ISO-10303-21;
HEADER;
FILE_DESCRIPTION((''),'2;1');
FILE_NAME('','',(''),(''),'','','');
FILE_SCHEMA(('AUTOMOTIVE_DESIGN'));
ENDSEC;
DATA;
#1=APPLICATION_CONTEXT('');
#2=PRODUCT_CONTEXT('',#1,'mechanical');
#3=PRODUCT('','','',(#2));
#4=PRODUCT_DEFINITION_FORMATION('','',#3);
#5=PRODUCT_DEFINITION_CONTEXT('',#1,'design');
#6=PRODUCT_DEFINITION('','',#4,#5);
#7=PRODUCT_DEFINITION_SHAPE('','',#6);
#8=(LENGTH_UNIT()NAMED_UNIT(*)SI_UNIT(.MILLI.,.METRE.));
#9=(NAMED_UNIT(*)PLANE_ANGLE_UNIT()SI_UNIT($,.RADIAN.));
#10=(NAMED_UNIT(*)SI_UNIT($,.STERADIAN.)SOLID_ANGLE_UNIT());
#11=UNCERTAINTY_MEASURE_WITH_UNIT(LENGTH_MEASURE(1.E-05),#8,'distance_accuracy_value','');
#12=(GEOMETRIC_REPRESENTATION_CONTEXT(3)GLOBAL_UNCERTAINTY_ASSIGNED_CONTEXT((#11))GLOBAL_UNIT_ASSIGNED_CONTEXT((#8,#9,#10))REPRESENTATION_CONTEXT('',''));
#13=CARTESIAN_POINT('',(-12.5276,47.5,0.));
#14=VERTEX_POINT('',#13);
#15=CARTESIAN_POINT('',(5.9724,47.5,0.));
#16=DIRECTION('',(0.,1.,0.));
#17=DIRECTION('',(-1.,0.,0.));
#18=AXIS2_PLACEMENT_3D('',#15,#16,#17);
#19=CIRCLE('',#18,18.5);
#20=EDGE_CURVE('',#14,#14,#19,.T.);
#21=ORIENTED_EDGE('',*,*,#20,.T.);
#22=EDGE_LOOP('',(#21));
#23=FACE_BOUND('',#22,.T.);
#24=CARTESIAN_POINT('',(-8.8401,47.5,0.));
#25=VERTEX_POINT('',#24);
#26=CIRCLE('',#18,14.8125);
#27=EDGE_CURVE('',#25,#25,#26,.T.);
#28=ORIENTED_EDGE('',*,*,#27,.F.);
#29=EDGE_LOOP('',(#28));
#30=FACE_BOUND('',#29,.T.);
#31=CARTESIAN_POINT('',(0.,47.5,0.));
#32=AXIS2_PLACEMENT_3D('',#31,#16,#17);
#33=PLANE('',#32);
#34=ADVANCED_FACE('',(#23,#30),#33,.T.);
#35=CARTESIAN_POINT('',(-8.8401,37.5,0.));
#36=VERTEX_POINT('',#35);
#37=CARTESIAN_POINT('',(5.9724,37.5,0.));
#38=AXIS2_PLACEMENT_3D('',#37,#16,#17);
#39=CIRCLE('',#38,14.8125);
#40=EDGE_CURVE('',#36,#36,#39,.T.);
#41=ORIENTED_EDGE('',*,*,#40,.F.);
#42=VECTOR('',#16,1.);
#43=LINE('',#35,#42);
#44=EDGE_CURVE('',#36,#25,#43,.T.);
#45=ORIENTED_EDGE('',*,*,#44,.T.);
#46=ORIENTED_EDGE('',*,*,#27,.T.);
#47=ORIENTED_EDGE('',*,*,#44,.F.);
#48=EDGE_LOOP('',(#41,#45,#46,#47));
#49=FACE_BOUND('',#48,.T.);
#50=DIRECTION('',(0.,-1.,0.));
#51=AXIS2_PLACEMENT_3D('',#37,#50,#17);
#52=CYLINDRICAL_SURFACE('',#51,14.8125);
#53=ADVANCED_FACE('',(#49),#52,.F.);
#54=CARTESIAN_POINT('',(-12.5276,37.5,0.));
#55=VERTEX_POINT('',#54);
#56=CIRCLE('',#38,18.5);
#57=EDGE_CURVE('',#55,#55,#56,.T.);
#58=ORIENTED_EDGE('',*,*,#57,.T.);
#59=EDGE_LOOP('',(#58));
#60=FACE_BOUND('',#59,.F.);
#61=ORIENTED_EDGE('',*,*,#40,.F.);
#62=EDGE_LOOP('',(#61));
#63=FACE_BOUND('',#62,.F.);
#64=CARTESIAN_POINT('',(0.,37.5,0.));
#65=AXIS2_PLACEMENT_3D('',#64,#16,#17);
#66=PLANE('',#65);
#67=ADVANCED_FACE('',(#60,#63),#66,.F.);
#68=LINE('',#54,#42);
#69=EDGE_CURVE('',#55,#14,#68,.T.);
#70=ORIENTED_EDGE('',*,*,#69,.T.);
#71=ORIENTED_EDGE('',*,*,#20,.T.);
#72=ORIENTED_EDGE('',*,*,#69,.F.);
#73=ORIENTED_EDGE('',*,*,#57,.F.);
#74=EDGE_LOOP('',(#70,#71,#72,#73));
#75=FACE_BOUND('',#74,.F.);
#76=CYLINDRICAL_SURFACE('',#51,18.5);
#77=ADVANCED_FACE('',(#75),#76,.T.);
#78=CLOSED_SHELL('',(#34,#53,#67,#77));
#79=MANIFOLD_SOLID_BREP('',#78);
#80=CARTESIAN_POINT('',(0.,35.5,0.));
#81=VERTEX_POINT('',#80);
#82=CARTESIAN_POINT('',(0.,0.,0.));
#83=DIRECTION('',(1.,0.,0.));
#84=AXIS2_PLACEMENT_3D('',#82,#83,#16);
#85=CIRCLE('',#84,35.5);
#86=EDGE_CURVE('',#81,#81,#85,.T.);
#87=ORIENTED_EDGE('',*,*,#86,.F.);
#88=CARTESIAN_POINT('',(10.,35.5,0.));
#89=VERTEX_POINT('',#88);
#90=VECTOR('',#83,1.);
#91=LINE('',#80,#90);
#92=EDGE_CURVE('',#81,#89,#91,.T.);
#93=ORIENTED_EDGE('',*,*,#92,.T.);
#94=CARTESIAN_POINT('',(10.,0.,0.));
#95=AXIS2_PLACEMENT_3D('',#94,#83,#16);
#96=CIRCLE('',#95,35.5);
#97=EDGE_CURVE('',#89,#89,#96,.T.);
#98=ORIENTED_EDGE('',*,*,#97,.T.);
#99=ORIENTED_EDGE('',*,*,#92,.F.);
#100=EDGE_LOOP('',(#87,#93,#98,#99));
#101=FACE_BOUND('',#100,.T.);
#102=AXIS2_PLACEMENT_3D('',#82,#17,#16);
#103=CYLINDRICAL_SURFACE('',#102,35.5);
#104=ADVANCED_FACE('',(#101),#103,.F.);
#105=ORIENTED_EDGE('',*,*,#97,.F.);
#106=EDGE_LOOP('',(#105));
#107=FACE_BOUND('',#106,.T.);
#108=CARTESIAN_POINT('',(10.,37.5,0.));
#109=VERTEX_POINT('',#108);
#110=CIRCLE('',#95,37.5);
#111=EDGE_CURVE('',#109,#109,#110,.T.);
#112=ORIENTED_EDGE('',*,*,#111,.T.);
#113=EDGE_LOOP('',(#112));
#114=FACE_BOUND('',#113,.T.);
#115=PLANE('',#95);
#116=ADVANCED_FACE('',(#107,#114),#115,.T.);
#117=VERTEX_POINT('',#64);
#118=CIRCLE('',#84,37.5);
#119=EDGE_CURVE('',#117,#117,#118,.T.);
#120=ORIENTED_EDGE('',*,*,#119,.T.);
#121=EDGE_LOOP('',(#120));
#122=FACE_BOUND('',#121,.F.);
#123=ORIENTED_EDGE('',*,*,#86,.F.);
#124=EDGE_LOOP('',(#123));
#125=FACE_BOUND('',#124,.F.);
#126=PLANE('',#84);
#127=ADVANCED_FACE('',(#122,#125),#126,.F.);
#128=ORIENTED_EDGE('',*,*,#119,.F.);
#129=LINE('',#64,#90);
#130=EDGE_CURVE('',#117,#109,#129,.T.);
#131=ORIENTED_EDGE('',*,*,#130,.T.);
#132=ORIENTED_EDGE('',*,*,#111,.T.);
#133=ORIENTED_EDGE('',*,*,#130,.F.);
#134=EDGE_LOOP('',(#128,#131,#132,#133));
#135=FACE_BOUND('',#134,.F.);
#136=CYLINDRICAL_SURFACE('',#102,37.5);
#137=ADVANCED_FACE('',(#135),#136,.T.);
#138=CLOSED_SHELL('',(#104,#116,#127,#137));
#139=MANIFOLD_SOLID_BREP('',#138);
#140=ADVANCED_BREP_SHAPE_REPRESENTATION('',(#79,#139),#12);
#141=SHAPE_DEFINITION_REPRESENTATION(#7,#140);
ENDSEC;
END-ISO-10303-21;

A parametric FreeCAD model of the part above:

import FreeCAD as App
import Part
import Sketcher
from FreeCAD import Vector

doc = App.newDocument("Part")
body = doc.addObject("PartDesign::Body", "Body")
body.AllowCompound = True

# Sketch on YZ plane
sketch1 = doc.addObject("Sketcher::SketchObject", "Sketch")
body.addObject(sketch1)
sketch1.AttachmentSupport = (doc.YZ_Plane, [""])
sketch1.MapMode = "FlatFace"
sketch1.addGeometry([
    Part.Circle(Vector(0, 0, 0), Vector(0, 0, 1), 37.5),
    Part.Circle(Vector(0, 0, 0), Vector(0, 0, 1), 35.5),
], False)
sketch1.addConstraint([
    Sketcher.Constraint("Coincident", 0, 3, -1, 1),
    Sketcher.Constraint("Coincident", 1, 3, -1, 1),
    Sketcher.Constraint("Diameter", 0, 75.0),
    Sketcher.Constraint("Diameter", 1, 71.0),
])
pad1 = doc.addObject("PartDesign::Pad", "Pad")
body.addObject(pad1)
pad1.Profile = sketch1
pad1.Length = 10

# Sketch on XZ plane
sketch2 = doc.addObject("Sketcher::SketchObject", "Sketch001")
body.addObject(sketch2)
sketch2.AttachmentSupport = (doc.XZ_Plane, [""])
sketch2.MapMode = "FlatFace"
sketch2.AttachmentOffset = App.Placement(Vector(0, 0, -37.5), App.Rotation())
sketch2.addGeometry([
    Part.Circle(Vector(5.9724, 0, 0), Vector(0, 0, 1), 18.5),
    Part.Circle(Vector(5.9724, 0, 0), Vector(0, 0, 1), 14.8125),
], False)
sketch2.addConstraint([
    Sketcher.Constraint("Coincident", 1, 3, 0, 3),
    Sketcher.Constraint("PointOnObject", 0, 3, -1),
    Sketcher.Constraint("Diameter", 0, 37.0),
    Sketcher.Constraint("Diameter", 1, 29.625),
    Sketcher.Constraint("DistanceX", -1, 1, 0, 3, 5.9724),
])
pad2 = doc.addObject("PartDesign::Pad", "Pad001")
body.addObject(pad2)
pad2.Profile = sketch2
pad2.Length = 10
pad2.Reversed = True

doc.recompute()
